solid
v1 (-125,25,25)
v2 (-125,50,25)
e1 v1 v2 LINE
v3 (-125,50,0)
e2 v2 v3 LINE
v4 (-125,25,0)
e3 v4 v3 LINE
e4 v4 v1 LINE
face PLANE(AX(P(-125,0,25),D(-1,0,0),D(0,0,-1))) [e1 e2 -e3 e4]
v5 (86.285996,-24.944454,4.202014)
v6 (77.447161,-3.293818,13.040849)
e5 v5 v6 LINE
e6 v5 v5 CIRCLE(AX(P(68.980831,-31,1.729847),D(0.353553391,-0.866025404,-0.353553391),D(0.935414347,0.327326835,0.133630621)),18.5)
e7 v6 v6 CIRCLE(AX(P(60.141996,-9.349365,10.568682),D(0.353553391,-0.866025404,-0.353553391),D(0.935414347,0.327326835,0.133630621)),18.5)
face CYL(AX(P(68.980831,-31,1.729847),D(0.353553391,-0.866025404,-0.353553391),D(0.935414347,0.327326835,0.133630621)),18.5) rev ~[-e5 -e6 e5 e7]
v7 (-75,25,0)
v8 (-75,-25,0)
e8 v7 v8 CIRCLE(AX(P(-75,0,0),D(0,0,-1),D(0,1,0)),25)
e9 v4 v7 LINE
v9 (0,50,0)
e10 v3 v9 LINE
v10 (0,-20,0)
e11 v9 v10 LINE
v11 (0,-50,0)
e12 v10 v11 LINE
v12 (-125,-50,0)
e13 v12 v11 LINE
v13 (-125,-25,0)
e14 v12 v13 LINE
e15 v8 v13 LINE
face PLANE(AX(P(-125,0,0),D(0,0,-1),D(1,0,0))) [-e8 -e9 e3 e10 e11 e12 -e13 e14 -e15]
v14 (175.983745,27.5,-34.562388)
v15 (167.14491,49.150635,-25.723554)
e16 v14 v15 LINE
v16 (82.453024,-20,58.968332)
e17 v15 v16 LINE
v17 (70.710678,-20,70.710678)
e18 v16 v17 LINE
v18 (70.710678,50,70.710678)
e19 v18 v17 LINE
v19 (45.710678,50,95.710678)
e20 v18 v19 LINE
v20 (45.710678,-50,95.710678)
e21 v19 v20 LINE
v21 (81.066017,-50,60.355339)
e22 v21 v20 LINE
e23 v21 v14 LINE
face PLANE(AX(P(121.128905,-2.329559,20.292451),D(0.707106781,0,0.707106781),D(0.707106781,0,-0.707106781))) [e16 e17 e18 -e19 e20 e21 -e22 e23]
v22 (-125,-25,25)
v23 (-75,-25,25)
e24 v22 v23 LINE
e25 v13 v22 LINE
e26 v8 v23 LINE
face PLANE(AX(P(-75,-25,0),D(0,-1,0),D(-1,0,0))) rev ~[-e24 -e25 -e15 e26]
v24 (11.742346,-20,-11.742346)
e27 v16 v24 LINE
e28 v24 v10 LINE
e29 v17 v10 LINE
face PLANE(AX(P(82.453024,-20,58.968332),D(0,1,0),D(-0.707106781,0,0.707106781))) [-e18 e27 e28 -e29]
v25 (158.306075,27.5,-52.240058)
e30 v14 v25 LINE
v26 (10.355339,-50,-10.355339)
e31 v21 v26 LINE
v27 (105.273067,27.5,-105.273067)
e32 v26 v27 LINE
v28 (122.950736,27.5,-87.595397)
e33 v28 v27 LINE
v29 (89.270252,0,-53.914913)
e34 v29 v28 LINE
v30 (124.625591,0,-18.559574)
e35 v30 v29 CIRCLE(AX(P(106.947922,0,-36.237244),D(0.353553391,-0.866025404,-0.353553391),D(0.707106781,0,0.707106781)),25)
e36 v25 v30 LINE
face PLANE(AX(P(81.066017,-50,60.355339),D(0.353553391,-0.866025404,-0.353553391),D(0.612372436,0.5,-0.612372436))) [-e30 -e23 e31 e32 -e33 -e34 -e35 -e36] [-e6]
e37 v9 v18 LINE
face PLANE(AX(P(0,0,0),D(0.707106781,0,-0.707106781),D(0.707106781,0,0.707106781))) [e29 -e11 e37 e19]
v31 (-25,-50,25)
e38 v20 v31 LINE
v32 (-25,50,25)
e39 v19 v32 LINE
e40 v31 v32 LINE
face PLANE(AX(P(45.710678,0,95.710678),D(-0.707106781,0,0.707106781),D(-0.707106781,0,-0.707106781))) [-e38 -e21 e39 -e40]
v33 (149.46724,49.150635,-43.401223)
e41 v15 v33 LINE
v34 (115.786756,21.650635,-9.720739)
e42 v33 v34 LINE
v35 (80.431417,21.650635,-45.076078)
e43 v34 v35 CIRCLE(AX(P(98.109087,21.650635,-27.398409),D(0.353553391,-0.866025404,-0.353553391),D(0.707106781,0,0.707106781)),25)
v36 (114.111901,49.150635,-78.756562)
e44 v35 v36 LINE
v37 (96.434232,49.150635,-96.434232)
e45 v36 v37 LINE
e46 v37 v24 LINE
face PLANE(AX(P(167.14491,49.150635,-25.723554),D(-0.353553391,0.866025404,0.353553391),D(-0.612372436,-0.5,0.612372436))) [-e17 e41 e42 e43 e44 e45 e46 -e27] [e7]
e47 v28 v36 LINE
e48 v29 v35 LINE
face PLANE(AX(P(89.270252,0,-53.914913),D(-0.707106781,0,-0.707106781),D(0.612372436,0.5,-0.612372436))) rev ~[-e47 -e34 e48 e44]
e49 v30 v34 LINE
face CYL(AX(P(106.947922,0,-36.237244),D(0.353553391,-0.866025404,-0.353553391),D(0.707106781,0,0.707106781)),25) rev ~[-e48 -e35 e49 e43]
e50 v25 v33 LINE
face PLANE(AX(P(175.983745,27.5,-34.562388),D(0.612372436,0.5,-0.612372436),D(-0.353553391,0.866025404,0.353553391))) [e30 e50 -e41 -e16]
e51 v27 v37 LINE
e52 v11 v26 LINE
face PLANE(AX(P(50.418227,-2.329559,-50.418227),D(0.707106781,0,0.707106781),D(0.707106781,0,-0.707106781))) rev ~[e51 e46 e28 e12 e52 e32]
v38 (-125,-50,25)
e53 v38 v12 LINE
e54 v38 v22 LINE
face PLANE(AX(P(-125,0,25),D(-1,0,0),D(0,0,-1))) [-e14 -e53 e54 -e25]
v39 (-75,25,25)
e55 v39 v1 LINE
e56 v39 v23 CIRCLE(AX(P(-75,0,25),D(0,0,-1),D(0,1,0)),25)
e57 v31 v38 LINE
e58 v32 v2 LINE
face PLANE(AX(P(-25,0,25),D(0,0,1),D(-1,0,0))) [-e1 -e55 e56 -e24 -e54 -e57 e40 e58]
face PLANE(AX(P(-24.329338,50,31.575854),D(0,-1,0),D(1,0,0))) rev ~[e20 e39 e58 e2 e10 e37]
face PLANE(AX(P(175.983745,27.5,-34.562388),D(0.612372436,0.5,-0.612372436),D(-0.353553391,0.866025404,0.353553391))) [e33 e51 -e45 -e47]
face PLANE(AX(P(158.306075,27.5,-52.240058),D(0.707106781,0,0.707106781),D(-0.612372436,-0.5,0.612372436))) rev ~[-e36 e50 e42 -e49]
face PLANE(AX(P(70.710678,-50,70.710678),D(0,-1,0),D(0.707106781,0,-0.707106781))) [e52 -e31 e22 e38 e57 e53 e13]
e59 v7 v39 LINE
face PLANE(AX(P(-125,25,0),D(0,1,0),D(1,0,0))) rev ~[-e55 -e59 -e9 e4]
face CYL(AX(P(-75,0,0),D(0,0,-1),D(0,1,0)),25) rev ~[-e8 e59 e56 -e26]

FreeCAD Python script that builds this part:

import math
import FreeCAD as App
import Part
import Sketcher

V = App.Vector
Q = App.Units.Quantity

doc = App.newDocument("Part")
body = doc.addObject("PartDesign::Body", "Body")

sketch1 = doc.addObject("Sketcher::SketchObject", "Sketch")
body.addObject(sketch1)
sketch1.AttachmentSupport = (doc.XZ_Plane, [""])
sketch1.MapMode = "FlatFace"
sketch1.addGeometry(Part.LineSegment(V(-125, 0, 0), V(0, 0, 0)), False)
sketch1.addGeometry(Part.LineSegment(V(0, 0, 0), V(71, 71, 0)), False)
sketch1.addGeometry(Part.LineSegment(V(71, 71, 0), V(46, 96, 0)), False)
sketch1.addGeometry(Part.LineSegment(V(46, 96, 0), V(-25, 25, 0)), False)
sketch1.addGeometry(Part.LineSegment(V(-25, 25, 0), V(-125, 25, 0)), False)
sketch1.addGeometry(Part.LineSegment(V(-125, 25, 0), V(-125, 0, 0)), False)
sketch1.addConstraint(Sketcher.Constraint("Coincident", 0, 2, 1, 1))
sketch1.addConstraint(Sketcher.Constraint("Coincident", 1, 2, 2, 1))
sketch1.addConstraint(Sketcher.Constraint("Coincident", 2, 2, 3, 1))
sketch1.addConstraint(Sketcher.Constraint("Coincident", 3, 2, 4, 1))
sketch1.addConstraint(Sketcher.Constraint("Coincident", 4, 2, 5, 1))
sketch1.addConstraint(Sketcher.Constraint("Coincident", 5, 2, 0, 1))
sketch1.addConstraint(Sketcher.Constraint("Horizontal", 0))
sketch1.addConstraint(Sketcher.Constraint("Horizontal", 4))
sketch1.addConstraint(Sketcher.Constraint("Vertical", 5))
sketch1.addConstraint(Sketcher.Constraint("Coincident", 0, 2, -1, 1))
sketch1.addConstraint(Sketcher.Constraint("Perpendicular", 1, 2))
sketch1.addConstraint(Sketcher.Constraint("Perpendicular", 2, 3))
sketch1.addConstraint(Sketcher.Constraint("Equal", 1, 3))
sketch1.addConstraint(Sketcher.Constraint("DistanceX", 0, 1, 0, 2, 125.0))
sketch1.addConstraint(Sketcher.Constraint("DistanceX", 4, 2, 4, 1, 100.0))
sketch1.addConstraint(Sketcher.Constraint("DistanceY", 5, 2, 5, 1, 25.0))
sketch1.addConstraint(Sketcher.Constraint("Distance", 1, 100.0))
pad1 = doc.addObject("PartDesign::Pad", "Pad")
body.addObject(pad1)
pad1.Profile = sketch1
pad1.Length = 100
pad1.Midplane = True

sketch2 = doc.addObject("Sketcher::SketchObject", "Sketch001")
body.addObject(sketch2)
sketch2.Placement = App.Placement(V(70.710678, 0, 70.710678), App.Rotation(V(0.707106781, 0, -0.707106781), V(0, 0.999999999, 0), V(0.707106781, 0, 0.707106781), "ZXY"))
sketch2.addGeometry(Part.LineSegment(V(0, -20, 0), V(0, -50, 0)), False)
sketch2.addGeometry(Part.LineSegment(V(0, -50, 0), V(15, -50, 0)), False)
sketch2.addGeometry(Part.LineSegment(V(15, -50, 0), V(149, 27, 0)), False)
sketch2.addGeometry(Part.LineSegment(V(149, 27, 0), V(136, 49, 0)), False)
sketch2.addGeometry(Part.LineSegment(V(136, 49, 0), V(17, -20, 0)), False)
sketch2.addGeometry(Part.LineSegment(V(17, -20, 0), V(0, -20, 0)), False)
sketch2.addConstraint(Sketcher.Constraint("Coincident", 0, 2, 1, 1))
sketch2.addConstraint(Sketcher.Constraint("Coincident", 1, 2, 2, 1))
sketch2.addConstraint(Sketcher.Constraint("Coincident", 2, 2, 3, 1))
sketch2.addConstraint(Sketcher.Constraint("Coincident", 3, 2, 4, 1))
sketch2.addConstraint(Sketcher.Constraint("Coincident", 4, 2, 5, 1))
sketch2.addConstraint(Sketcher.Constraint("Coincident", 5, 2, 0, 1))
sketch2.addConstraint(Sketcher.Constraint("Vertical", 0))
sketch2.addConstraint(Sketcher.Constraint("Horizontal", 1))
sketch2.addConstraint(Sketcher.Constraint("Horizontal", 5))
sketch2.addConstraint(Sketcher.Constraint("PointOnObject", 0, 2, -2))
sketch2.addConstraint(Sketcher.Constraint("Perpendicular", 2, 3))
sketch2.addConstraint(Sketcher.Constraint("Perpendicular", 3, 4))
sketch2.addConstraint(Sketcher.Constraint("DistanceY", 0, 2, 0, 1, 30.0))
sketch2.addConstraint(Sketcher.Constraint("Angle", 2, Q("30 deg")))
sketch2.addConstraint(Sketcher.Constraint("Distance", 2, 155.0))
sketch2.addConstraint(Sketcher.Constraint("Distance", 3, 25.0))
sketch2.addConstraint(Sketcher.Constraint("DistanceY", 0, 2, -1, 1, 50.0))
sketch2.addConstraint(Sketcher.Constraint("DistanceX", 1, 1, 1, 2, 14.644661))
pad2 = doc.addObject("PartDesign::Pad", "Pad001")
body.addObject(pad2)
pad2.Profile = sketch2
pad2.Length = 100
pad2.Reversed = True

sketch3 = doc.addObject("Sketcher::SketchObject", "Sketch002")
body.addObject(sketch3)
sketch3.AttachmentSupport = (doc.XY_Plane, [""])
sketch3.MapMode = "FlatFace"
sketch3.addGeometry(Part.LineSegment(V(-125, 25, 0), V(-75, 25, 0)), False)
sketch3.addGeometry(Part.ArcOfCircle(Part.Circle(V(-75, 0, 0), V(0, 0, 1), 25), math.radians(-90), math.radians(90)), False)
sketch3.addGeometry(Part.LineSegment(V(-75, -25, 0), V(-125, -25, 0)), False)
sketch3.addGeometry(Part.LineSegment(V(-125, -25, 0), V(-125, 25, 0)), False)
sketch3.addConstraint(Sketcher.Constraint("Tangent", 0, 2, 1, 2))
sketch3.addConstraint(Sketcher.Constraint("Tangent", 1, 1, 2, 1))
sketch3.addConstraint(Sketcher.Constraint("Coincident", 2, 2, 3, 1))
sketch3.addConstraint(Sketcher.Constraint("Coincident", 3, 2, 0, 1))
sketch3.addConstraint(Sketcher.Constraint("Horizontal", 0))
sketch3.addConstraint(Sketcher.Constraint("Horizontal", 2))
sketch3.addConstraint(Sketcher.Constraint("Vertical", 3))
sketch3.addConstraint(Sketcher.Constraint("PointOnObject", 1, 3, -1))
sketch3.addConstraint(Sketcher.Constraint("Equal", 2, 3))
sketch3.addConstraint(Sketcher.Constraint("Radius", 1, 25.0))
sketch3.addConstraint(Sketcher.Constraint("DistanceX", 1, 3, -1, 1, 75.0))
pocket1 = doc.addObject("PartDesign::Pocket", "Pocket")
body.addObject(pocket1)
pocket1.Profile = sketch3
pocket1.Type = "ThroughAll"
pocket1.Reversed = True

sketch4 = doc.addObject("Sketcher::SketchObject", "Sketch003")
body.addObject(sketch4)
sketch4.Placement = App.Placement(V(17.898146, -43.841324, -17.898146), App.Rotation(V(0.935414347, 0.327326835, 0.133630621), V(0, -0.377964474, 0.9258201), V(0.353553391, -0.866025404, -0.353553391), "ZXY"))
sketch4.addGeometry(Part.ArcOfCircle(Part.Circle(V(95, -34, 0), V(0, 0, 1), 25), math.radians(41), math.radians(221)), False)
sketch4.addGeometry(Part.LineSegment(V(76, -50, 0), V(112, -91, 0)), False)
sketch4.addGeometry(Part.LineSegment(V(112, -91, 0), V(150, -59, 0)), False)
sketch4.addGeometry(Part.LineSegment(V(150, -59, 0), V(114, -17, 0)), False)
sketch4.addGeometry(Part.Circle(V(55, 13, 0), V(0, 0, 1), 18), False)
sketch4.addConstraint(Sketcher.Constraint("Tangent", 0, 2, 1, 1))
sketch4.addConstraint(Sketcher.Constraint("Coincident", 1, 2, 2, 1))
sketch4.addConstraint(Sketcher.Constraint("Coincident", 2, 2, 3, 1))
sketch4.addConstraint(Sketcher.Constraint("Tangent", 3, 2, 0, 1))
sketch4.addConstraint(Sketcher.Constraint("Perpendicular", 1, 2))
sketch4.addConstraint(Sketcher.Constraint("Perpendicular", 2, 3))
sketch4.addConstraint(Sketcher.Constraint("Diameter", 4, 37.0))
sketch4.addConstraint(Sketcher.Constraint("Radius", 0, 25.0))
sketch4.addConstraint(Sketcher.Constraint("Distance", 1, 55.0))
sketch4.addConstraint(Sketcher.Constraint("DistanceX", 0, 2, 2, 2, 73.802399))
sketch4.addConstraint(Sketcher.Constraint("DistanceY", 0, 3, -1, 1, 33.549169))
sketch4.addConstraint(Sketcher.Constraint("DistanceX", -1, 1, 0, 2, 76.299991))
sketch4.addConstraint(Sketcher.Constraint("DistanceY", 1, 2, 4, 3, 104.810029))
sketch4.addConstraint(Sketcher.Constraint("DistanceX", 4, 3, 3, 2, 59.486751))
pocket2 = doc.addObject("PartDesign::Pocket", "Pocket001")
body.addObject(pocket2)
pocket2.Profile = sketch4
pocket2.Length = 25

doc.recompute()
